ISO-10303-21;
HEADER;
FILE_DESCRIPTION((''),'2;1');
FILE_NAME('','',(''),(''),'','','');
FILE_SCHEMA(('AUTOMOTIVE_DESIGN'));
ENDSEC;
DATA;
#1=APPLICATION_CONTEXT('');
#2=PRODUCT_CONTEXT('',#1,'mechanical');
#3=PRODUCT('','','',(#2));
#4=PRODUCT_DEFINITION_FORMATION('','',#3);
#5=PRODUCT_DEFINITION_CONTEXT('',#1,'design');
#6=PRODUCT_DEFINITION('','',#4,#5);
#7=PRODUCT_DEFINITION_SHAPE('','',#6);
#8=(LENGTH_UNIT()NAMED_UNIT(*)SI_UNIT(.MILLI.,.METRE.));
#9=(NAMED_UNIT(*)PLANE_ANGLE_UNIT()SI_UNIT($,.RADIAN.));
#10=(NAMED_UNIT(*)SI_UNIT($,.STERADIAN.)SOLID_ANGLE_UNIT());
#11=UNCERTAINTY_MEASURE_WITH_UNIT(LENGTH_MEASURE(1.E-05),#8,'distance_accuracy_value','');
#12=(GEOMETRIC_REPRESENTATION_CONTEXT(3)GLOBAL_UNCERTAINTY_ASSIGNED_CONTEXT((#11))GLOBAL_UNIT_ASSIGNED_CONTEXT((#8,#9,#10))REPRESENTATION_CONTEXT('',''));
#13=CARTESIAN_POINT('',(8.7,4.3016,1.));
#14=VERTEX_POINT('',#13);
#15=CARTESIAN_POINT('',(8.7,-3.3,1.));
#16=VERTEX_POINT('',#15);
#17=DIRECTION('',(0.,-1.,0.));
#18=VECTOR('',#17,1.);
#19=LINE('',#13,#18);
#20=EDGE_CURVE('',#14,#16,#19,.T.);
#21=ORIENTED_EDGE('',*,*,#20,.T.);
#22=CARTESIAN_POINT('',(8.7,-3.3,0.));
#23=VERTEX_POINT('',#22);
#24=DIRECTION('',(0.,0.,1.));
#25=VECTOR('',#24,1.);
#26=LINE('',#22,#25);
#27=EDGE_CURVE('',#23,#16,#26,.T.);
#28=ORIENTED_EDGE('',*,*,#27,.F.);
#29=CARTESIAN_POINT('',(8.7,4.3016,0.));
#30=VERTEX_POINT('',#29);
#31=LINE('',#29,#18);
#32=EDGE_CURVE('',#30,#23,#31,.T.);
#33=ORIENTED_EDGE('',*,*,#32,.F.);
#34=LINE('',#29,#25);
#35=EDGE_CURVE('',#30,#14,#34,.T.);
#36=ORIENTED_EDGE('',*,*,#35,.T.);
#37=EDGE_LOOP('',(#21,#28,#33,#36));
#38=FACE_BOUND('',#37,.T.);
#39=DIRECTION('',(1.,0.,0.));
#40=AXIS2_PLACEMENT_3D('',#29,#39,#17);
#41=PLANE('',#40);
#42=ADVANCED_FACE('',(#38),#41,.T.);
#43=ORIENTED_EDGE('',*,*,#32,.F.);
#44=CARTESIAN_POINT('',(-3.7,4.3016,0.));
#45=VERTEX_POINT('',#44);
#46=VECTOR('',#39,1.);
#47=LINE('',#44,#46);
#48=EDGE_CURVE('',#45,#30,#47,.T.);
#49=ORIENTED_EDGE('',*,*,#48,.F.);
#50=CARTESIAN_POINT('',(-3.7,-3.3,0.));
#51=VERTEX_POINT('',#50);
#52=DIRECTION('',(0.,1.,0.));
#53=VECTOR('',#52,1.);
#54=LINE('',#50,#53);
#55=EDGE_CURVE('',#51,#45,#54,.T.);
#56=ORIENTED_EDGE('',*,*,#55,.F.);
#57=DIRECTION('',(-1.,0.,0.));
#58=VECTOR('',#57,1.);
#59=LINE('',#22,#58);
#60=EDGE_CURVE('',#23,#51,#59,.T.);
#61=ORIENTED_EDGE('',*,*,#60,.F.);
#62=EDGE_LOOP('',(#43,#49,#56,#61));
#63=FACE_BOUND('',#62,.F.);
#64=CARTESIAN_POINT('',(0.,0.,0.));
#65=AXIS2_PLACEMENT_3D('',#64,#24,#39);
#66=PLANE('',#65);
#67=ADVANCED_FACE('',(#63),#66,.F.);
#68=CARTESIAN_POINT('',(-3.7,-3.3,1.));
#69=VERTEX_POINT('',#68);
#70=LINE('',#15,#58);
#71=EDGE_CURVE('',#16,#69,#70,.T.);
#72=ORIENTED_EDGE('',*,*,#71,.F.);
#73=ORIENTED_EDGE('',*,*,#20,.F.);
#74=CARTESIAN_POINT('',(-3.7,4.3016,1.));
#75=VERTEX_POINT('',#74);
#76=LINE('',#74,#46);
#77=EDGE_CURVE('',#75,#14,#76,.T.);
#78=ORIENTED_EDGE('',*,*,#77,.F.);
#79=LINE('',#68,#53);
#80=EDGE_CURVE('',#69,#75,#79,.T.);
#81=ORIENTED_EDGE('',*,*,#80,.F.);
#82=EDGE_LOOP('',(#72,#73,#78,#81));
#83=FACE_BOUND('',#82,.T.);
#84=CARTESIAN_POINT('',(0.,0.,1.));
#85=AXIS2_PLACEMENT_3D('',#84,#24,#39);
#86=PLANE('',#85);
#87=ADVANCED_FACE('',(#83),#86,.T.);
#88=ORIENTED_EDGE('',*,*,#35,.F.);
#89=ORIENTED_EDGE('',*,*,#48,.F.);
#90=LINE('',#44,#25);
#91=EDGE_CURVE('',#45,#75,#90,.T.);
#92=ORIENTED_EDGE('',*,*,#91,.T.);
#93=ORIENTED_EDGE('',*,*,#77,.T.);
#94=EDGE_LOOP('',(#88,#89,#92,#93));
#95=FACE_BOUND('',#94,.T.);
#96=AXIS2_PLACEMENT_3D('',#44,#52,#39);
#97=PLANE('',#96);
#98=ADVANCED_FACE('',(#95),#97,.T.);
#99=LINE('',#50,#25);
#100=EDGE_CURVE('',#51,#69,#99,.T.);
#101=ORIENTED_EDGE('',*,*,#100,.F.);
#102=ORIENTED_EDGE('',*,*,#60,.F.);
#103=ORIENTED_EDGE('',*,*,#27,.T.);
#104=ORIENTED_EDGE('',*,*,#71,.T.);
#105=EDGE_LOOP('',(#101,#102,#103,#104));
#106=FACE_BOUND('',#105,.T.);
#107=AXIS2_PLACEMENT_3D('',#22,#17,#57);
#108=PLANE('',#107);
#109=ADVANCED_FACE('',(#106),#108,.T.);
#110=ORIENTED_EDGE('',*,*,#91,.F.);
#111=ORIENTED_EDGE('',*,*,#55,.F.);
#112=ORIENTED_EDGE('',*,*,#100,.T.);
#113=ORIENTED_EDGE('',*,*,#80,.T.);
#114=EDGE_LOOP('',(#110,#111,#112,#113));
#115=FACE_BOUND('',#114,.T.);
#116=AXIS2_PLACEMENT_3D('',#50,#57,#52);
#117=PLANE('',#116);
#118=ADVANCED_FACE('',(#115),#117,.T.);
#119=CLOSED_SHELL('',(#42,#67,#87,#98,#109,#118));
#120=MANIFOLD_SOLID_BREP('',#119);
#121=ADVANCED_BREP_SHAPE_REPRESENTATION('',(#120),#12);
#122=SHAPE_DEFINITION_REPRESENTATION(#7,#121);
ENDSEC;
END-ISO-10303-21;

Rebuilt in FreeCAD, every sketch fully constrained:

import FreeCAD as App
import Part
import Sketcher


def add_polygon(sketch, points):
    """Adds a closed chain of lines whose ends are joined by coincident constraints."""
    first, n = sketch.GeometryCount, len(points)
    for a, b in zip(points, points[1:] + points[:1]):
        sketch.addGeometry(Part.LineSegment(App.Vector(*a, 0), App.Vector(*b, 0)), False)
    for i in range(n):
        sketch.addConstraint(Sketcher.Constraint("Coincident", first + i, 2, first + (i + 1) % n, 1))

doc = App.newDocument("Part")
params = doc.addObject("Spreadsheet::Sheet", "Params")
for row, (alias, value) in enumerate([
    ("sketch1_width", "12.4 mm"),
    ("pad1_length", "1 mm"),
], start=1):
    params.set(f"A{row}", alias)
    params.set(f"B{row}", "=" + value)
    params.setAlias(f"B{row}", alias)

body = doc.addObject("PartDesign::Body", "Body")

# Sketch on XY plane
sketch1 = body.newObject("Sketcher::SketchObject", "Sketch")
sketch1.AttachmentSupport = (doc.getObject("XY_Plane"), [""])
sketch1.MapMode = "FlatFace"
add_polygon(sketch1, [(9, 4), (-4, 4), (-4, -3), (9, -3)])  # lines 0-3
sketch1.addConstraint(Sketcher.Constraint("Horizontal", 0))
sketch1.addConstraint(Sketcher.Constraint("Vertical", 1))
sketch1.addConstraint(Sketcher.Constraint("Horizontal", 2))
sketch1.addConstraint(Sketcher.Constraint("Vertical", 3))
sketch1.addConstraint(Sketcher.Constraint("DistanceX", 0, 2, 0, 1, 12.4))
sketch1.addConstraint(Sketcher.Constraint("DistanceX", 0, 2, -1, 1, 3.7))
sketch1.addConstraint(Sketcher.Constraint("DistanceY", 1, 2, -1, 1, 3.3))
sketch1.addConstraint(Sketcher.Constraint("DistanceY", 1, 2, 1, 1, 7.6016))
sketch1.setExpression("Constraints[8]", "Params.sketch1_width")
pad1 = body.newObject("PartDesign::Pad", "Pad")
pad1.Profile = sketch1
pad1.setExpression("Length", "Params.pad1_length")

doc.recompute()
